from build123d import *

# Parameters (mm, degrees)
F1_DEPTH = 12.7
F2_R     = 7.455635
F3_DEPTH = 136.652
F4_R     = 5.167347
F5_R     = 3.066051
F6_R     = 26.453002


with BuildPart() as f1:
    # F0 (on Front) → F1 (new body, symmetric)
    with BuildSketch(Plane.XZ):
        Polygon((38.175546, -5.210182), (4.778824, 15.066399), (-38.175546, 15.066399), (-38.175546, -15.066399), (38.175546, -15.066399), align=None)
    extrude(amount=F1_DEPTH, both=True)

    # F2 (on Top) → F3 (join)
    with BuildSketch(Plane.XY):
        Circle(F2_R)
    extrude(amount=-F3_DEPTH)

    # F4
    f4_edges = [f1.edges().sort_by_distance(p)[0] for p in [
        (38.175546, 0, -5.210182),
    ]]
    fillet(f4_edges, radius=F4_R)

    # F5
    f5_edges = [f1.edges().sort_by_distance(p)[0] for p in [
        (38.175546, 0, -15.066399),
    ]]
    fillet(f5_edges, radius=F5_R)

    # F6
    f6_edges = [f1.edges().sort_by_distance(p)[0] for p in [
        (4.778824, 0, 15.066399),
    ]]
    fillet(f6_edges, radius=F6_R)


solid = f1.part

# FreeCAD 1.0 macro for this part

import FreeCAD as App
import Part
import Sketcher
Q = App.Units.Quantity


def edges_at(feature, points):
    """Names of the edges that pass closest to the given points."""
    edges = feature.Shape.Edges
    near = lambda p: min(range(len(edges)), key=lambda i: edges[i].distToShape(Part.Vertex(*p))[0])
    return sorted({f"Edge{near(p) + 1}" for p in points})


def add_polygon(sketch, points):
    """Adds a closed chain of lines whose ends are joined by coincident constraints."""
    first, n = sketch.GeometryCount, len(points)
    for a, b in zip(points, points[1:] + points[:1]):
        sketch.addGeometry(Part.LineSegment(App.Vector(*a, 0), App.Vector(*b, 0)), False)
    for i in range(n):
        sketch.addConstraint(Sketcher.Constraint("Coincident", first + i, 2, first + (i + 1) % n, 1))

doc = App.newDocument("Part")
body = doc.addObject("PartDesign::Body", "Body")

# Sketch on XZ plane
sketch1 = body.newObject("Sketcher::SketchObject", "Sketch")
sketch1.AttachmentSupport = (doc.getObject("XZ_Plane"), [""])
sketch1.MapMode = "FlatFace"
add_polygon(sketch1, [(38, -5), (5, 15), (-38, 15), (-38, -15), (38, -15)])  # lines 0-4
sketch1.addConstraint(Sketcher.Constraint("Horizontal", 1))
sketch1.addConstraint(Sketcher.Constraint("Vertical", 2))
sketch1.addConstraint(Sketcher.Constraint("Horizontal", 3))
sketch1.addConstraint(Sketcher.Constraint("Vertical", 4))
sketch1.addConstraint(Sketcher.Constraint("Symmetric", 1, 2, 3, 2, -1, 1))
sketch1.addConstraint(Sketcher.Constraint("DistanceY", 2, 2, 2, 1, 30.132798))
sketch1.addConstraint(Sketcher.Constraint("DistanceX", 1, 2, 1, 1, 42.95437))
sketch1.addConstraint(Sketcher.Constraint("DistanceX", 3, 1, 3, 2, 76.351092))
sketch1.addConstraint(Sketcher.Constraint("DistanceY", 4, 1, 4, 2, 9.856217))
pad1 = body.newObject("PartDesign::Pad", "Pad")
pad1.Profile = sketch1
pad1.Length = Q("1 in")
pad1.Midplane = True

# Sketch on XY plane
sketch2 = body.newObject("Sketcher::SketchObject", "Sketch001")
sketch2.AttachmentSupport = (doc.getObject("XY_Plane"), [""])
sketch2.MapMode = "FlatFace"
sketch2.addGeometry(Part.Circle(App.Vector(0, 0, 0), App.Vector(0, 0, 1), 7), False)
sketch2.addConstraint(Sketcher.Constraint("Coincident", 0, 3, -1, 1))
sketch2.addConstraint(Sketcher.Constraint("Diameter", 0, 14.91127))
pad2 = body.newObject("PartDesign::Pad", "Pad001")
pad2.Profile = sketch2
pad2.Length = Q("5.38 in")
pad2.Reversed = True
doc.recompute()

fillet = body.newObject("PartDesign::Fillet", "Fillet")
fillet.Base = (pad2, edges_at(pad2, [(38.176, 0, -5.21)]))
fillet.Radius = 5.167347
doc.recompute()

fillet2 = body.newObject("PartDesign::Fillet", "Fillet001")
fillet2.Base = (fillet, edges_at(fillet, [(38.176, 0, -15.066)]))
fillet2.Radius = 3.066051
doc.recompute()

fillet3 = body.newObject("PartDesign::Fillet", "Fillet002")
fillet3.Base = (fillet2, edges_at(fillet2, [(4.779, 0, 15.066)]))
fillet3.Radius = 26.453002

doc.recompute()
